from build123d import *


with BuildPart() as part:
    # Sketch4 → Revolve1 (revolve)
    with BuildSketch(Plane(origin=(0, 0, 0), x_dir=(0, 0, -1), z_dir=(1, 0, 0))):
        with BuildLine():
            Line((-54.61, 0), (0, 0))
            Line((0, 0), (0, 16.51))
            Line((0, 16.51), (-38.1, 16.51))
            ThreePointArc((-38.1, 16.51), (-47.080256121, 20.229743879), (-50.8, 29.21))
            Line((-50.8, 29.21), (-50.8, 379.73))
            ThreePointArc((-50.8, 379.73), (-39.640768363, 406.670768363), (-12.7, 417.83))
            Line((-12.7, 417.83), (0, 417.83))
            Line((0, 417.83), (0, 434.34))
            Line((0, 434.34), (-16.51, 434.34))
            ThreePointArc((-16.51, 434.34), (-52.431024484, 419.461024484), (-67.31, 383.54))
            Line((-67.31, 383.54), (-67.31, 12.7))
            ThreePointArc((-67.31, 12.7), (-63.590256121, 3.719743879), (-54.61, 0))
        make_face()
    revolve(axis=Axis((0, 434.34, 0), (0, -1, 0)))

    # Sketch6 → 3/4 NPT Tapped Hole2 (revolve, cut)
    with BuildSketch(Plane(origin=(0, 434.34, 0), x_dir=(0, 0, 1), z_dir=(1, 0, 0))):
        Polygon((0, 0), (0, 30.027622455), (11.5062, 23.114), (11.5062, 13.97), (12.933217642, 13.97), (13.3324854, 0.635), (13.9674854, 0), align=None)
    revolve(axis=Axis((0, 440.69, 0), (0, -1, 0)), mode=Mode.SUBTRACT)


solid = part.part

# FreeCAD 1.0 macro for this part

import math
import FreeCAD as App
import Part
import Sketcher
Q = App.Units.Quantity


def add_polygon(sketch, points):
    """Adds a closed chain of lines whose ends are joined by coincident constraints."""
    first, n = sketch.GeometryCount, len(points)
    for a, b in zip(points, points[1:] + points[:1]):
        sketch.addGeometry(Part.LineSegment(App.Vector(*a, 0), App.Vector(*b, 0)), False)
    for i in range(n):
        sketch.addConstraint(Sketcher.Constraint("Coincident", first + i, 2, first + (i + 1) % n, 1))

doc = App.newDocument("Part")
params = doc.addObject("Spreadsheet::Sheet", "Params")
for row, (alias, value) in enumerate([
    ("sketch1_radius", "2 in"),
    ("sketch1_radius2", "0.5 in"),
    ("sketch1_radius3", "1.5 in"),
    ("sketch1_width", "13.8 in"),
    ("sketch1_width2", "14.6 in"),
    ("revolution_angle", "360 deg"),
    ("sketch2_width", "0.36 in"),
    ("groove_angle", "360 deg"),
], start=1):
    params.set(f"A{row}", alias)
    params.set(f"B{row}", "=" + value)
    params.setAlias(f"B{row}", alias)

body = doc.addObject("PartDesign::Body", "Body")

# Sketch on YZ plane
sketch1 = body.newObject("Sketcher::SketchObject", "Sketch")
sketch1.AttachmentSupport = (doc.getObject("YZ_Plane"), [""])
sketch1.MapMode = "FlatFace"
sketch1.addGeometry(Part.LineSegment(App.Vector(0, 55, 0), App.Vector(0, 0, 0)), False)
sketch1.addGeometry(Part.LineSegment(App.Vector(0, 0, 0), App.Vector(17, 0, 0)), False)
sketch1.addGeometry(Part.LineSegment(App.Vector(17, 0, 0), App.Vector(17, 38, 0)), False)
sketch1.addGeometry(Part.ArcOfCircle(Part.Circle(App.Vector(29, 38, 0), App.Vector(0, 0, 1), 13), math.radians(90), math.radians(180)), False)
sketch1.addGeometry(Part.LineSegment(App.Vector(29, 51, 0), App.Vector(380, 51, 0)), False)
sketch1.addGeometry(Part.ArcOfCircle(Part.Circle(App.Vector(380, 13, 0), App.Vector(0, 0, 1), 38), math.radians(0), math.radians(90)), False)
sketch1.addGeometry(Part.LineSegment(App.Vector(418, 13, 0), App.Vector(418, 0, 0)), False)
sketch1.addGeometry(Part.LineSegment(App.Vector(418, 0, 0), App.Vector(434, 0, 0)), False)
sketch1.addGeometry(Part.LineSegment(App.Vector(434, 0, 0), App.Vector(434, 17, 0)), False)
sketch1.addGeometry(Part.ArcOfCircle(Part.Circle(App.Vector(384, 17, 0), App.Vector(0, 0, 1), 51), math.radians(0), math.radians(90)), False)
sketch1.addGeometry(Part.LineSegment(App.Vector(384, 67, 0), App.Vector(13, 67, 0)), False)
sketch1.addGeometry(Part.ArcOfCircle(Part.Circle(App.Vector(13, 55, 0), App.Vector(0, 0, 1), 13), math.radians(90), math.radians(180)), False)
sketch1.addConstraint(Sketcher.Constraint("Coincident", 0, 2, 1, 1))
sketch1.addConstraint(Sketcher.Constraint("Coincident", 1, 2, 2, 1))
sketch1.addConstraint(Sketcher.Constraint("Tangent", 2, 2, 3, 2))
sketch1.addConstraint(Sketcher.Constraint("Tangent", 3, 1, 4, 1))
sketch1.addConstraint(Sketcher.Constraint("Tangent", 4, 2, 5, 2))
sketch1.addConstraint(Sketcher.Constraint("Tangent", 5, 1, 6, 1))
sketch1.addConstraint(Sketcher.Constraint("Coincident", 6, 2, 7, 1))
sketch1.addConstraint(Sketcher.Constraint("Coincident", 7, 2, 8, 1))
sketch1.addConstraint(Sketcher.Constraint("Tangent", 8, 2, 9, 1))
sketch1.addConstraint(Sketcher.Constraint("Tangent", 9, 2, 10, 1))
sketch1.addConstraint(Sketcher.Constraint("Tangent", 10, 2, 11, 1))
sketch1.addConstraint(Sketcher.Constraint("Tangent", 11, 2, 0, 1))
sketch1.addConstraint(Sketcher.Constraint("Vertical", 0))
sketch1.addConstraint(Sketcher.Constraint("Horizontal", 1))
sketch1.addConstraint(Sketcher.Constraint("Vertical", 2))
sketch1.addConstraint(Sketcher.Constraint("Horizontal", 4))
sketch1.addConstraint(Sketcher.Constraint("Vertical", 6))
sketch1.addConstraint(Sketcher.Constraint("Horizontal", 7))
sketch1.addConstraint(Sketcher.Constraint("Vertical", 8))
sketch1.addConstraint(Sketcher.Constraint("Horizontal", 10))
sketch1.addConstraint(Sketcher.Constraint("Coincident", 0, 2, -1, 1))
sketch1.addConstraint(Sketcher.Constraint("Equal", 3, 11))
sketch1.addConstraint(Sketcher.Constraint("PointOnObject", 6, 2, -1))
sketch1.addConstraint(Sketcher.Constraint("Equal", 1, 7))
sketch1.addConstraint(Sketcher.Constraint("Equal", 7, 8))
sketch1.addConstraint(Sketcher.Constraint("Radius", 9, Q("2 in")))
sketch1.addConstraint(Sketcher.Constraint("Radius", 3, Q("0.5 in")))
sketch1.addConstraint(Sketcher.Constraint("Radius", 5, Q("1.5 in")))
sketch1.addConstraint(Sketcher.Constraint("DistanceX", 4, 1, 4, 2, Q("13.8 in")))
sketch1.addConstraint(Sketcher.Constraint("DistanceX", 10, 2, 10, 1, Q("14.6 in")))
sketch1.addConstraint(Sketcher.Constraint("DistanceY", 2, 1, 2, 2, Q("1.5 in")))
sketch1.setExpression("Constraints[25]", "Params.sketch1_radius")
sketch1.setExpression("Constraints[26]", "Params.sketch1_radius2")
sketch1.setExpression("Constraints[27]", "Params.sketch1_radius3")
sketch1.setExpression("Constraints[28]", "Params.sketch1_width")
sketch1.setExpression("Constraints[29]", "Params.sketch1_width2")
revolution = body.newObject("PartDesign::Revolution", "Revolution")
revolution.Profile = sketch1
revolution.ReferenceAxis = (sketch1, ["H_Axis"])
revolution.setExpression("Angle", "Params.revolution_angle")

# Sketch on YZ plane
sketch2 = body.newObject("Sketcher::SketchObject", "Sketch001")
sketch2.AttachmentSupport = (doc.getObject("YZ_Plane"), [""])
sketch2.MapMode = "FlatFace"
add_polygon(sketch2, [(404.3, 0), (434.3, 0), (434.3, 14), (433.7, 13.3), (420.4, 12.9), (420.4, 11.5), (411.2, 11.5)])  # lines 0-6
sketch2.addConstraint(Sketcher.Constraint("Horizontal", 0))
sketch2.addConstraint(Sketcher.Constraint("Vertical", 1))
sketch2.addConstraint(Sketcher.Constraint("Vertical", 4))
sketch2.addConstraint(Sketcher.Constraint("Horizontal", 5))
sketch2.addConstraint(Sketcher.Constraint("PointOnObject", 0, 2, -1))
sketch2.addConstraint(Sketcher.Constraint("Angle", 2, Q("-135 deg")))
sketch2.addConstraint(Sketcher.Constraint("Angle", 6, Q("-121 deg")))
sketch2.addConstraint(Sketcher.Constraint("DistanceX", 5, 2, 5, 1, Q("0.36 in")))
sketch2.addConstraint(Sketcher.Constraint("DistanceX", -1, 1, 0, 2, Q("17.1 in")))
sketch2.addConstraint(Sketcher.Constraint("DistanceX", -1, 1, 3, 2, Q("16.55 in")))
sketch2.addConstraint(Sketcher.Constraint("DistanceX", -1, 1, 2, 2, Q("17.075 in")))
sketch2.addConstraint(Sketcher.Constraint("DistanceY", -1, 1, 4, 2, Q("0.453 in")))
sketch2.addConstraint(Sketcher.Constraint("DistanceY", 1, 1, 1, 2, Q("13.967485 mm")))
sketch2.addConstraint(Sketcher.Constraint("DistanceY", 4, 2, 4, 1, Q("1.427018 mm")))
sketch2.setExpression("Constraints[14]", "Params.sketch2_width")
groove = body.newObject("PartDesign::Groove", "Groove")
groove.Profile = sketch2
groove.ReferenceAxis = (sketch2, ["H_Axis"])
groove.setExpression("Angle", "Params.groove_angle")

doc.recompute()
